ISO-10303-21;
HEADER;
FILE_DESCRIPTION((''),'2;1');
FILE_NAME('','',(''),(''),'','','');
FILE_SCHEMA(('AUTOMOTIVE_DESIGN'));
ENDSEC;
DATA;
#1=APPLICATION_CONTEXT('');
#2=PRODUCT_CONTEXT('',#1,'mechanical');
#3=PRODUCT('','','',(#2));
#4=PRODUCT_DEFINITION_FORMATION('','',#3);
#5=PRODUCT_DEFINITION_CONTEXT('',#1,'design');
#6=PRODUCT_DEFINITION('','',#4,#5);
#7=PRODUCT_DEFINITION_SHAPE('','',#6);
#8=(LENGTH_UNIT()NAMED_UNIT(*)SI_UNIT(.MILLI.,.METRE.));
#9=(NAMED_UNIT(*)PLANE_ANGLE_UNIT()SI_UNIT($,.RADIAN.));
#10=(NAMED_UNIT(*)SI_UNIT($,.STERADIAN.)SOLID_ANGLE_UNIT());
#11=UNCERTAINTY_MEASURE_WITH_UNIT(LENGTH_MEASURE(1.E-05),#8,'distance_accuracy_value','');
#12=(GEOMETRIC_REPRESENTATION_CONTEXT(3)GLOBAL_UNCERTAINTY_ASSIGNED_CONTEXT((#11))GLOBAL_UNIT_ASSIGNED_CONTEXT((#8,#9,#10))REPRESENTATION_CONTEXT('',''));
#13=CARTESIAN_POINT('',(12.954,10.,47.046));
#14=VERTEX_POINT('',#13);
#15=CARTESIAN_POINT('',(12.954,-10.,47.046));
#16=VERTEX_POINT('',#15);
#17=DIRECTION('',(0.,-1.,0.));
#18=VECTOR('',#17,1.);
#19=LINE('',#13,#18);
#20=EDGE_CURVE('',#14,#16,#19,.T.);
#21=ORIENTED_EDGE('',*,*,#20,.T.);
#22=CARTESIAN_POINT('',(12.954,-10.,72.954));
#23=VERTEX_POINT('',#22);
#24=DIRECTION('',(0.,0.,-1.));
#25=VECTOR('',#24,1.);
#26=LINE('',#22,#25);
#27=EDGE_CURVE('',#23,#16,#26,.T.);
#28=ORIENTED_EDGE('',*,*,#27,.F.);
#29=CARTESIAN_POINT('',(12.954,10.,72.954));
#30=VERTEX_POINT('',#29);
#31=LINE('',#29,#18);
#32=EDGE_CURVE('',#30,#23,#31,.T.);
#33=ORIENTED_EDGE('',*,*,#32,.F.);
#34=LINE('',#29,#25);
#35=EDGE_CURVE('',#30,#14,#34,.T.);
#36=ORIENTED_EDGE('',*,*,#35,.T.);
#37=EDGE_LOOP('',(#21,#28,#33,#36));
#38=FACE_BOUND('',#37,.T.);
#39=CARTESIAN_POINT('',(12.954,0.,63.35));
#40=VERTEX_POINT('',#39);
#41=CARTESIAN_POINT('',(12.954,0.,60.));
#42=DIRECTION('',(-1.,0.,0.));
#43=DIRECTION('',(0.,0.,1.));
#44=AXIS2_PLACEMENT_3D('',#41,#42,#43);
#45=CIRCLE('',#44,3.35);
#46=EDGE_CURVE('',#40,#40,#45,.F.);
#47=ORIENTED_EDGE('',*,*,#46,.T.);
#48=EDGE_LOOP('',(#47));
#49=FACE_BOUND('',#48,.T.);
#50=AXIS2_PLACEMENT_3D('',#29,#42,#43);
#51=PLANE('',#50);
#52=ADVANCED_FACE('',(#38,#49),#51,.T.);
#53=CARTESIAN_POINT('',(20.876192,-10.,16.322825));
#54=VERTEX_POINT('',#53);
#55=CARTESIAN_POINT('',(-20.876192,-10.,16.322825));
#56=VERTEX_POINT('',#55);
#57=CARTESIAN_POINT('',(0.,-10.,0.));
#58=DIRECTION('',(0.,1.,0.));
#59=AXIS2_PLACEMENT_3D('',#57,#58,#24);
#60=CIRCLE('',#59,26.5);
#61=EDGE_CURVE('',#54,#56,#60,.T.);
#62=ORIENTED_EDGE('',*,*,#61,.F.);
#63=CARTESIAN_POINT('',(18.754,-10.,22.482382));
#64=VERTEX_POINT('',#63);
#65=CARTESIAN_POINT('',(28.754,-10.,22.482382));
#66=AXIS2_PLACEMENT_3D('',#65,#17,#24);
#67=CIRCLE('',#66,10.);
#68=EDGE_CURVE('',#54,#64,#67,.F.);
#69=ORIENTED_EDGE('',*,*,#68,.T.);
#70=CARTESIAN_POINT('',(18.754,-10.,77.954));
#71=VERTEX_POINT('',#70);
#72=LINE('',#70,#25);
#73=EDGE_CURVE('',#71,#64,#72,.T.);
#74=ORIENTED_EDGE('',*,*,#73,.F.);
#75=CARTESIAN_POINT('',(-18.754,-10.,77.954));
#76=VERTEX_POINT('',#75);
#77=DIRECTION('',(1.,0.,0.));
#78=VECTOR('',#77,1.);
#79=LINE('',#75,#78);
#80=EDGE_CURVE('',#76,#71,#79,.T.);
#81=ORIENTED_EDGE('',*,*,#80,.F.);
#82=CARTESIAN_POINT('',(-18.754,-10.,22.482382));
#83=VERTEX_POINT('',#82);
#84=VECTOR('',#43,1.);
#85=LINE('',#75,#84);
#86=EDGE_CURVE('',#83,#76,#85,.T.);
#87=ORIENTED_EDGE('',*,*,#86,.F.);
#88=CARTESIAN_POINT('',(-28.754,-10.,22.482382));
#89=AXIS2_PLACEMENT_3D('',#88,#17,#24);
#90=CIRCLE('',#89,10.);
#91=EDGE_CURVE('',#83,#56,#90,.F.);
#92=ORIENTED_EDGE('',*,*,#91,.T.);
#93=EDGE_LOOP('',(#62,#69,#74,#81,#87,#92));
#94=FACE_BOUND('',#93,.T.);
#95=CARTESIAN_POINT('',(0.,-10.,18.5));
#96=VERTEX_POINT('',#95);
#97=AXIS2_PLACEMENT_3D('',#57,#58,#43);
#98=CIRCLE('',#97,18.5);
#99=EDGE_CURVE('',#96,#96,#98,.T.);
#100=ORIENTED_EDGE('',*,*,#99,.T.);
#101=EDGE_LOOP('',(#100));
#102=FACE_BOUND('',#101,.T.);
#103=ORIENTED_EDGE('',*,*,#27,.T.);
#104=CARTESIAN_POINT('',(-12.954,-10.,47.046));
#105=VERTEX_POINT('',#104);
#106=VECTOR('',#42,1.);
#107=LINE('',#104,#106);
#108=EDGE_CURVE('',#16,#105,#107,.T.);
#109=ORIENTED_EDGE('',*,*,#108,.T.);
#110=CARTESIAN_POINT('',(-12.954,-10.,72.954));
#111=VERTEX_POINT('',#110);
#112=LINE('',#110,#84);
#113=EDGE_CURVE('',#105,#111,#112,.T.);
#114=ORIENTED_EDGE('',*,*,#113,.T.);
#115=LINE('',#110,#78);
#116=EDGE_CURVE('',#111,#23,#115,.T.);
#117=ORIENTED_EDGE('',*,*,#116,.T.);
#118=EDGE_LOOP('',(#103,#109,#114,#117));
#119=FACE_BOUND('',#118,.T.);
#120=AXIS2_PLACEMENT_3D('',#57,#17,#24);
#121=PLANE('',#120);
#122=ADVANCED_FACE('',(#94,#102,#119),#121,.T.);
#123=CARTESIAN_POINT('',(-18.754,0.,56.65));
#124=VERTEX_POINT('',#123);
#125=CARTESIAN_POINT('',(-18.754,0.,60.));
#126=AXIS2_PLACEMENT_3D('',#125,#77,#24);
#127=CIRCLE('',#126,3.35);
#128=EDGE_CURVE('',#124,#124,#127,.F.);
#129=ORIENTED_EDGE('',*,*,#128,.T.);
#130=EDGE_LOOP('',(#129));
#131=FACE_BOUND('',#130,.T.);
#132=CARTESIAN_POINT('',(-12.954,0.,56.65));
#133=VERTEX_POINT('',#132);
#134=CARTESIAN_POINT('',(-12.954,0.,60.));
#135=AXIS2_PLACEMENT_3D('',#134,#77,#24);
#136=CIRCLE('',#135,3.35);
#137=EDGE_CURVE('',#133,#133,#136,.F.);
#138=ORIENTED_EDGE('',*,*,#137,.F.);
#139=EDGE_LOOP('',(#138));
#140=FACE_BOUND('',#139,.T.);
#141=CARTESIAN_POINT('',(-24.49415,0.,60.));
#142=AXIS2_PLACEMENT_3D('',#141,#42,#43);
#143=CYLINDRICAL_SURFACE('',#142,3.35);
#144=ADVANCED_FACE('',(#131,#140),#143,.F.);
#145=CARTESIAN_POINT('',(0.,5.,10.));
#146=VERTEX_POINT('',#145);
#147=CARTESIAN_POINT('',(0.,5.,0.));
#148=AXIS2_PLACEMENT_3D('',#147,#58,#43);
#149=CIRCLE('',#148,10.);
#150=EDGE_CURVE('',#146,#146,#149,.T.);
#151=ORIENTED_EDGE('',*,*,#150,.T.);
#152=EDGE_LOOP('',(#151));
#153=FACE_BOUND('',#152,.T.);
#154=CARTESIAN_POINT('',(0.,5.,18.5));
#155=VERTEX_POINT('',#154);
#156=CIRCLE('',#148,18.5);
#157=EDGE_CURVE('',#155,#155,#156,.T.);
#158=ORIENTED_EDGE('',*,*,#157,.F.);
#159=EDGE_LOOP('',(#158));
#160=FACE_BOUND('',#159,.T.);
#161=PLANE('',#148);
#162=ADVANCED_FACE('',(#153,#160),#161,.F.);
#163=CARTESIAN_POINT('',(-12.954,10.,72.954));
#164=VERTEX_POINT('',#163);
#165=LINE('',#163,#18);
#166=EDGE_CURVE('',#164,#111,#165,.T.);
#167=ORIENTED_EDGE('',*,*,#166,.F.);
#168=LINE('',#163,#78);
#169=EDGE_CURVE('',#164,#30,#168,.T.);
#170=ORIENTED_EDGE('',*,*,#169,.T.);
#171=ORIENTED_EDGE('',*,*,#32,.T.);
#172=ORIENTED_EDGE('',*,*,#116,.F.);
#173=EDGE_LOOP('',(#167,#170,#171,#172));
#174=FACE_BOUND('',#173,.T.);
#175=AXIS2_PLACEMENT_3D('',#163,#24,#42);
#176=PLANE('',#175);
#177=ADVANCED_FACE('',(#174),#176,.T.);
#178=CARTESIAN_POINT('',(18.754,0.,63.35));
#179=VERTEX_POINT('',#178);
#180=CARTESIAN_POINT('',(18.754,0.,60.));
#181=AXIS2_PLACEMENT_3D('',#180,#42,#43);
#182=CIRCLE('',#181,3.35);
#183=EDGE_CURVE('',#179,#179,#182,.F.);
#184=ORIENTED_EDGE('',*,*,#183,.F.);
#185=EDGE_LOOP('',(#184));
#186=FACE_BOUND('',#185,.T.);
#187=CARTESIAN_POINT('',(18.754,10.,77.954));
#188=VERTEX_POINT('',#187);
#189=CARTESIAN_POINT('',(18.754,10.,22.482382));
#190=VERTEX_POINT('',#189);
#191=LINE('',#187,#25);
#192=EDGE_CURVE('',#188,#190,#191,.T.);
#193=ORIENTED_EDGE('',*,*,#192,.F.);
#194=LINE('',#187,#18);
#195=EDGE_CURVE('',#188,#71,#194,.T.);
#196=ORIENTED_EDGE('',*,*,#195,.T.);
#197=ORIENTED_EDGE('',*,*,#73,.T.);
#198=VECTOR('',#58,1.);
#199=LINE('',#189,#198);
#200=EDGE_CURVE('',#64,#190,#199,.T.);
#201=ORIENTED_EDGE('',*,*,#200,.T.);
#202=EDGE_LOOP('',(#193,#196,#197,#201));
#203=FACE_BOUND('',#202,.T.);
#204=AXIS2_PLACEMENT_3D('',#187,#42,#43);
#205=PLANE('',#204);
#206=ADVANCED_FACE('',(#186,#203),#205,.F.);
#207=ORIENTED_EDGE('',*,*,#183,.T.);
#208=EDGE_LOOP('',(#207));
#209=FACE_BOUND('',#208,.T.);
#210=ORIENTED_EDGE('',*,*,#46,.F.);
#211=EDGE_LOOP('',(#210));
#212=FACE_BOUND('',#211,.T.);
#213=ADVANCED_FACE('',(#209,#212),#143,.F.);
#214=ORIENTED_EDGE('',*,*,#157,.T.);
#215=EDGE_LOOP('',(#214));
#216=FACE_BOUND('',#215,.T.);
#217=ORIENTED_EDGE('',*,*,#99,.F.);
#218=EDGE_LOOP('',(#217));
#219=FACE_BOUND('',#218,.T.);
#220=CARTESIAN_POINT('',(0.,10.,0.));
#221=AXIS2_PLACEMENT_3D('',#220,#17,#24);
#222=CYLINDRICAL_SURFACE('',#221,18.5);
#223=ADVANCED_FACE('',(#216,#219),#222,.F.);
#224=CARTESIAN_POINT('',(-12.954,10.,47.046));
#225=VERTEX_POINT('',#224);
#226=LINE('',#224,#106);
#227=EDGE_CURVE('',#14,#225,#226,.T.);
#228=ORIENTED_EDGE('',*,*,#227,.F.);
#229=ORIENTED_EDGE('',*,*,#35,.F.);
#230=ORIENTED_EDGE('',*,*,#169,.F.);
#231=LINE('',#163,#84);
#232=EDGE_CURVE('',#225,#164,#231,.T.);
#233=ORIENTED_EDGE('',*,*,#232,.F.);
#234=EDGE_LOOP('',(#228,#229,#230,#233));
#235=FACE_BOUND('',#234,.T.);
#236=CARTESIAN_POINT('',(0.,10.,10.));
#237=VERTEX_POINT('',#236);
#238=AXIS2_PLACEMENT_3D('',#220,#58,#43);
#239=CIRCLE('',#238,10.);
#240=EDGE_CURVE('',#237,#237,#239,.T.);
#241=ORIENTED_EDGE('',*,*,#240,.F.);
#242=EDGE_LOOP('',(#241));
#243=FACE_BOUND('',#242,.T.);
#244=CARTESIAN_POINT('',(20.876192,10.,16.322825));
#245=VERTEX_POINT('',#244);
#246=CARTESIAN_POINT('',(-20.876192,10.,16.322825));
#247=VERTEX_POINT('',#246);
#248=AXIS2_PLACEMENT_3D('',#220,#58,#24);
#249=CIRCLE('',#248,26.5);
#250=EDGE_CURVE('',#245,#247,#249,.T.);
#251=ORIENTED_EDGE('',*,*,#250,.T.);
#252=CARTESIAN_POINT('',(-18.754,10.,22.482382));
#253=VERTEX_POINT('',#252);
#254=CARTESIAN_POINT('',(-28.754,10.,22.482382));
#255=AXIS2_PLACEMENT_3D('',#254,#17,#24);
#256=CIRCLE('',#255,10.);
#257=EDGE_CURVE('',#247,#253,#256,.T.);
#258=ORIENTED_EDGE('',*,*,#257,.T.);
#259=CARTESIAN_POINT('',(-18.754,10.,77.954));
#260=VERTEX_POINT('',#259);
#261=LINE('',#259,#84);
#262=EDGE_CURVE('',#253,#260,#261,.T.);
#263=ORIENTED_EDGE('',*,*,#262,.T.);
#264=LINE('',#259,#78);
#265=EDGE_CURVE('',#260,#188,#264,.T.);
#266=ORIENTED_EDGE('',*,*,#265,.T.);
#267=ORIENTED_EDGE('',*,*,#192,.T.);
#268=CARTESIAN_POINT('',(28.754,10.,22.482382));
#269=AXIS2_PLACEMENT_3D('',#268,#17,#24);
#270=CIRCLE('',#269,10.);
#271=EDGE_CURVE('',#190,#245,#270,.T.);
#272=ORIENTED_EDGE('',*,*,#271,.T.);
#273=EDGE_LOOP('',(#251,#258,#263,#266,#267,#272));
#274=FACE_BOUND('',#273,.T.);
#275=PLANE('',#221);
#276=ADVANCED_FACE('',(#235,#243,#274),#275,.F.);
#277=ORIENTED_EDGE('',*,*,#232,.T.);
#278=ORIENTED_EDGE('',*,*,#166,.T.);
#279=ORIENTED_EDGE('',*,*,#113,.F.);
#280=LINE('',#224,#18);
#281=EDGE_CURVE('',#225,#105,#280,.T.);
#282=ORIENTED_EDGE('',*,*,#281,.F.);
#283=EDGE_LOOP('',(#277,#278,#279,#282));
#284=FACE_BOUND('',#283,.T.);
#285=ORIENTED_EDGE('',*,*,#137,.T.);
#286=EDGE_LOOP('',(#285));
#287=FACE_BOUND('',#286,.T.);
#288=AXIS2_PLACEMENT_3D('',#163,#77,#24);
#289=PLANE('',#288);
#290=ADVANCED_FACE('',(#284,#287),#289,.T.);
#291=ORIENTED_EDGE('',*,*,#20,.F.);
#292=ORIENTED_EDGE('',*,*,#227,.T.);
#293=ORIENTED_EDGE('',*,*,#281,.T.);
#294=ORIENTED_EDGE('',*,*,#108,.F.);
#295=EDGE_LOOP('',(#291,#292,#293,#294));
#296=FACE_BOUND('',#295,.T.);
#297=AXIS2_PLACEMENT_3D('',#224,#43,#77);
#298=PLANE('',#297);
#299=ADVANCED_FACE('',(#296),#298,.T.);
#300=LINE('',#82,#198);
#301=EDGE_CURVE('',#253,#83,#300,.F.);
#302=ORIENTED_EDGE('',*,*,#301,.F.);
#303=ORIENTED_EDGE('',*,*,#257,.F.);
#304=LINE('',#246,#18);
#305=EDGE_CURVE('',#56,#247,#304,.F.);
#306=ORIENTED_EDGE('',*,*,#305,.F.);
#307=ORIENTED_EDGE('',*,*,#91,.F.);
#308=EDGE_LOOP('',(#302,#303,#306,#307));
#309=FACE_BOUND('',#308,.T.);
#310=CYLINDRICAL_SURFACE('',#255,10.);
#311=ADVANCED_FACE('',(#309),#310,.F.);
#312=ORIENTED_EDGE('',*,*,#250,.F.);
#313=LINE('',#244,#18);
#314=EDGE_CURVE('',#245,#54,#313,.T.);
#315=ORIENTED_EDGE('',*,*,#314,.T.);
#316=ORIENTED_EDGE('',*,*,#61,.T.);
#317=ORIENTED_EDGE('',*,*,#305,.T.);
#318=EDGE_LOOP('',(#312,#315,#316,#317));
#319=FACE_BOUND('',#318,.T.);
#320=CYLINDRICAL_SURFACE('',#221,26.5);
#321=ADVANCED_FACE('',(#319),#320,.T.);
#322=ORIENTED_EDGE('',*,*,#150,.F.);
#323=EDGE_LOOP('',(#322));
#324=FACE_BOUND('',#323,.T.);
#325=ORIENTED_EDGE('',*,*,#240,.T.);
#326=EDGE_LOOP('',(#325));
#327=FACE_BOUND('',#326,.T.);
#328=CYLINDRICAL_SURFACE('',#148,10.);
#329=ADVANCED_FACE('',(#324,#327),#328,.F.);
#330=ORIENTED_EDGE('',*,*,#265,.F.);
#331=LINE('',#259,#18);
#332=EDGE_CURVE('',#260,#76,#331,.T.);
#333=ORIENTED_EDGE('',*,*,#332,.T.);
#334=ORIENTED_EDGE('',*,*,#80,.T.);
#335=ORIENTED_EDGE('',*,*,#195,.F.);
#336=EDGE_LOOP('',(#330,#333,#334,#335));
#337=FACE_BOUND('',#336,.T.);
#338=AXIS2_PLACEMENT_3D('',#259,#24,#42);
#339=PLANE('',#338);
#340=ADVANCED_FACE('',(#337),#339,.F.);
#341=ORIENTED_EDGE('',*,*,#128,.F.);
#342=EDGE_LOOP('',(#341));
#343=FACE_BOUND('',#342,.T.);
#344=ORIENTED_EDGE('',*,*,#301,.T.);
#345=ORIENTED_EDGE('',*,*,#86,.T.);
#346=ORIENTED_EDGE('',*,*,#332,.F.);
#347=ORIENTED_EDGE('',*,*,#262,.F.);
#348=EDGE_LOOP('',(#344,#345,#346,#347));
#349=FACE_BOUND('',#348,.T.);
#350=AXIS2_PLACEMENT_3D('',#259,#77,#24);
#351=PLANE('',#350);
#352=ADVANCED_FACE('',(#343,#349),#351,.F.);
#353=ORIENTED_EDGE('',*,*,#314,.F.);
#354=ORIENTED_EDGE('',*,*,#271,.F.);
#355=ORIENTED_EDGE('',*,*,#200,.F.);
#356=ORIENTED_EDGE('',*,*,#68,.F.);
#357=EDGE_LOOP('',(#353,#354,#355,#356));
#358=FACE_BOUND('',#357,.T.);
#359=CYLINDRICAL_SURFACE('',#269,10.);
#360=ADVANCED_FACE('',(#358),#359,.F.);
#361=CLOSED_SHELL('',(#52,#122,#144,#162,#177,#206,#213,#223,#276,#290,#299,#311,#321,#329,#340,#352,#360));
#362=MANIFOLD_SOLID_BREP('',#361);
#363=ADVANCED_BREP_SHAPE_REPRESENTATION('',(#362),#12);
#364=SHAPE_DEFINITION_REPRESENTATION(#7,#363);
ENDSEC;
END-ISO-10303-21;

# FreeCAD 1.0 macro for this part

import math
import FreeCAD as App
import Part
import Sketcher
from FreeCAD import Vector
Q = App.Units.Quantity


def edges_at(feature, points):
    """Names of the edges that pass closest to the given points."""
    edges = feature.Shape.Edges
    near = lambda p: min(range(len(edges)), key=lambda i: edges[i].distToShape(Part.Vertex(*p))[0])
    return sorted({f"Edge{near(p) + 1}" for p in points})


def add_polygon(sketch, points):
    """Adds a closed chain of lines whose ends are joined by coincident constraints."""
    first, n = sketch.GeometryCount, len(points)
    for a, b in zip(points, points[1:] + points[:1]):
        sketch.addGeometry(Part.LineSegment(App.Vector(*a, 0), App.Vector(*b, 0)), False)
    for i in range(n):
        sketch.addConstraint(Sketcher.Constraint("Coincident", first + i, 2, first + (i + 1) % n, 1))

doc = App.newDocument("Part")
body = doc.addObject("PartDesign::Body", "Body")

# Sketch on XZ plane
sketch1 = doc.addObject("Sketcher::SketchObject", "Sketch")
body.addObject(sketch1)
sketch1.AttachmentSupport = (doc.XZ_Plane, [""])
sketch1.MapMode = "FlatFace"
sketch1.addGeometry(Part.LineSegment(Vector(-18.754, 77.954, 0), Vector(18.754, 77.954, 0)), False)  # 0
sketch1.addGeometry(Part.LineSegment(Vector(18.754, 77.954, 0), Vector(18.754, 18.722646, 0)), False)  # 1
sketch1.addGeometry(Part.ArcOfCircle(Part.Circle(Vector(0, 0, 0), Vector(0, 0, 1), 26.5), math.radians(135.047935), math.radians(404.952065)), False)  # 2
sketch1.addGeometry(Part.LineSegment(Vector(-18.754, 18.722646, 0), Vector(-18.754, 77.954, 0)), False)  # 3
add_polygon(sketch1, [(12.954, 72.954), (-12.954, 72.954), (-12.954, 47.046), (12.954, 47.046)])  # lines 4-7
sketch1.addGeometry(Part.Circle(Vector(0, 0, 0), Vector(0, 0, 1), 18.5), False)  # 8
sketch1.addConstraint(Sketcher.Constraint("Coincident", 0, 2, 1, 1))
sketch1.addConstraint(Sketcher.Constraint("Coincident", 1, 2, 2, 2))
sketch1.addConstraint(Sketcher.Constraint("Coincident", 2, 1, 3, 1))
sketch1.addConstraint(Sketcher.Constraint("Coincident", 3, 2, 0, 1))
sketch1.addConstraint(Sketcher.Constraint("Horizontal", 0))
sketch1.addConstraint(Sketcher.Constraint("Vertical", 1))
sketch1.addConstraint(Sketcher.Constraint("Vertical", 3))
sketch1.addConstraint(Sketcher.Constraint("Horizontal", 4))
sketch1.addConstraint(Sketcher.Constraint("Vertical", 5))
sketch1.addConstraint(Sketcher.Constraint("Horizontal", 6))
sketch1.addConstraint(Sketcher.Constraint("Vertical", 7))
sketch1.addConstraint(Sketcher.Constraint("Coincident", 2, 3, -1, 1))
sketch1.addConstraint(Sketcher.Constraint("Coincident", 8, 3, -1, 1))
sketch1.addConstraint(Sketcher.Constraint("Horizontal", 1, 2, 2, 1))
sketch1.addConstraint(Sketcher.Constraint("Equal", 6, 5))
sketch1.addConstraint(Sketcher.Constraint("Diameter", 8, Q("37 mm")))
sketch1.addConstraint(Sketcher.Constraint("Radius", 2, Q("26.5 mm")))
sketch1.addConstraint(Sketcher.Constraint("DistanceY", 4, 2, 3, 2, Q("5 mm")))
sketch1.addConstraint(Sketcher.Constraint("DistanceX", 3, 2, 4, 2, Q("5.8 mm")))
sketch1.addConstraint(Sketcher.Constraint("DistanceX", 6, 2, 1, 2, Q("5.8 mm")))
sketch1.addConstraint(Sketcher.Constraint("DistanceX", 0, 1, 0, 2, Q("37.508 mm")))
sketch1.addConstraint(Sketcher.Constraint("DistanceY", -1, 1, 0, 2, Q("77.954 mm")))
pad1 = doc.addObject("PartDesign::Pad", "Pad")
body.addObject(pad1)
pad1.Profile = sketch1
pad1.Length = 20
pad1.Midplane = True

# Sketch on XZ plane
sketch2 = doc.addObject("Sketcher::SketchObject", "Sketch001")
body.addObject(sketch2)
sketch2.AttachmentSupport = (doc.XZ_Plane, [""])
sketch2.MapMode = "FlatFace"
sketch2.AttachmentOffset = App.Placement(Vector(0, 0, -10), App.Rotation())
sketch2.addGeometry(Part.Circle(Vector(0, 0, 0), Vector(0, 0, 1), 26.5), False)
sketch2.addGeometry(Part.Circle(Vector(0, 0, 0), Vector(0, 0, 1), 10), False)
sketch2.addConstraint(Sketcher.Constraint("Coincident", 0, 3, -1, 1))
sketch2.addConstraint(Sketcher.Constraint("Coincident", 1, 3, -1, 1))
sketch2.addConstraint(Sketcher.Constraint("Diameter", 0, Q("53 mm")))
sketch2.addConstraint(Sketcher.Constraint("Diameter", 1, Q("20 mm")))
pad2 = doc.addObject("PartDesign::Pad", "Pad001")
body.addObject(pad2)
pad2.Profile = sketch2
pad2.Length = 5

# Sketch on XZ plane
sketch3 = doc.addObject("Sketcher::SketchObject", "Sketch002")
body.addObject(sketch3)
sketch3.AttachmentSupport = (doc.XZ_Plane, [""])
sketch3.MapMode = "FlatFace"
add_polygon(sketch3, [(-20.624505, 56.65), (-20.624505, 60), (21.686086, 60), (21.686086, 56.65)])  # lines 0-3
sketch3.addGeometry(Part.LineSegment(Vector(-20.624505, 60, 0), Vector(21.686086, 60, 0)), True)  # axis
sketch3.addConstraint(Sketcher.Constraint("Vertical", 0))
sketch3.addConstraint(Sketcher.Constraint("Horizontal", 1))
sketch3.addConstraint(Sketcher.Constraint("Vertical", 2))
sketch3.addConstraint(Sketcher.Constraint("Horizontal", 3))
sketch3.addConstraint(Sketcher.Constraint("Horizontal", 4))
sketch3.addConstraint(Sketcher.Constraint("Coincident", 4, 1, 0, 2))
sketch3.addConstraint(Sketcher.Constraint("Vertical", 2, 2, 4, 2))
sketch3.addConstraint(Sketcher.Constraint("DistanceY", -1, 1, 0, 2, Q("60 mm")))
sketch3.addConstraint(Sketcher.Constraint("DistanceY", 0, 1, 0, 2, Q("3.35 mm")))
sketch3.addConstraint(Sketcher.Constraint("DistanceX", 1, 1, 1, 2, Q("42.310591 mm")))
sketch3.addConstraint(Sketcher.Constraint("DistanceX", 0, 2, -1, 1, Q("20.624505 mm")))
groove = doc.addObject("PartDesign::Groove", "Groove")
body.addObject(groove)
groove.Profile = sketch3
groove.ReferenceAxis = (sketch3, ["Axis0"])
groove.Angle = 360
doc.recompute()

fillet = doc.addObject("PartDesign::Fillet", "Fillet")
body.addObject(fillet)
fillet.Base = (groove, edges_at(groove, [(18.754, 0, 18.723), (-18.754, 0, 18.723)]))
fillet.Radius = 10

doc.recompute()
